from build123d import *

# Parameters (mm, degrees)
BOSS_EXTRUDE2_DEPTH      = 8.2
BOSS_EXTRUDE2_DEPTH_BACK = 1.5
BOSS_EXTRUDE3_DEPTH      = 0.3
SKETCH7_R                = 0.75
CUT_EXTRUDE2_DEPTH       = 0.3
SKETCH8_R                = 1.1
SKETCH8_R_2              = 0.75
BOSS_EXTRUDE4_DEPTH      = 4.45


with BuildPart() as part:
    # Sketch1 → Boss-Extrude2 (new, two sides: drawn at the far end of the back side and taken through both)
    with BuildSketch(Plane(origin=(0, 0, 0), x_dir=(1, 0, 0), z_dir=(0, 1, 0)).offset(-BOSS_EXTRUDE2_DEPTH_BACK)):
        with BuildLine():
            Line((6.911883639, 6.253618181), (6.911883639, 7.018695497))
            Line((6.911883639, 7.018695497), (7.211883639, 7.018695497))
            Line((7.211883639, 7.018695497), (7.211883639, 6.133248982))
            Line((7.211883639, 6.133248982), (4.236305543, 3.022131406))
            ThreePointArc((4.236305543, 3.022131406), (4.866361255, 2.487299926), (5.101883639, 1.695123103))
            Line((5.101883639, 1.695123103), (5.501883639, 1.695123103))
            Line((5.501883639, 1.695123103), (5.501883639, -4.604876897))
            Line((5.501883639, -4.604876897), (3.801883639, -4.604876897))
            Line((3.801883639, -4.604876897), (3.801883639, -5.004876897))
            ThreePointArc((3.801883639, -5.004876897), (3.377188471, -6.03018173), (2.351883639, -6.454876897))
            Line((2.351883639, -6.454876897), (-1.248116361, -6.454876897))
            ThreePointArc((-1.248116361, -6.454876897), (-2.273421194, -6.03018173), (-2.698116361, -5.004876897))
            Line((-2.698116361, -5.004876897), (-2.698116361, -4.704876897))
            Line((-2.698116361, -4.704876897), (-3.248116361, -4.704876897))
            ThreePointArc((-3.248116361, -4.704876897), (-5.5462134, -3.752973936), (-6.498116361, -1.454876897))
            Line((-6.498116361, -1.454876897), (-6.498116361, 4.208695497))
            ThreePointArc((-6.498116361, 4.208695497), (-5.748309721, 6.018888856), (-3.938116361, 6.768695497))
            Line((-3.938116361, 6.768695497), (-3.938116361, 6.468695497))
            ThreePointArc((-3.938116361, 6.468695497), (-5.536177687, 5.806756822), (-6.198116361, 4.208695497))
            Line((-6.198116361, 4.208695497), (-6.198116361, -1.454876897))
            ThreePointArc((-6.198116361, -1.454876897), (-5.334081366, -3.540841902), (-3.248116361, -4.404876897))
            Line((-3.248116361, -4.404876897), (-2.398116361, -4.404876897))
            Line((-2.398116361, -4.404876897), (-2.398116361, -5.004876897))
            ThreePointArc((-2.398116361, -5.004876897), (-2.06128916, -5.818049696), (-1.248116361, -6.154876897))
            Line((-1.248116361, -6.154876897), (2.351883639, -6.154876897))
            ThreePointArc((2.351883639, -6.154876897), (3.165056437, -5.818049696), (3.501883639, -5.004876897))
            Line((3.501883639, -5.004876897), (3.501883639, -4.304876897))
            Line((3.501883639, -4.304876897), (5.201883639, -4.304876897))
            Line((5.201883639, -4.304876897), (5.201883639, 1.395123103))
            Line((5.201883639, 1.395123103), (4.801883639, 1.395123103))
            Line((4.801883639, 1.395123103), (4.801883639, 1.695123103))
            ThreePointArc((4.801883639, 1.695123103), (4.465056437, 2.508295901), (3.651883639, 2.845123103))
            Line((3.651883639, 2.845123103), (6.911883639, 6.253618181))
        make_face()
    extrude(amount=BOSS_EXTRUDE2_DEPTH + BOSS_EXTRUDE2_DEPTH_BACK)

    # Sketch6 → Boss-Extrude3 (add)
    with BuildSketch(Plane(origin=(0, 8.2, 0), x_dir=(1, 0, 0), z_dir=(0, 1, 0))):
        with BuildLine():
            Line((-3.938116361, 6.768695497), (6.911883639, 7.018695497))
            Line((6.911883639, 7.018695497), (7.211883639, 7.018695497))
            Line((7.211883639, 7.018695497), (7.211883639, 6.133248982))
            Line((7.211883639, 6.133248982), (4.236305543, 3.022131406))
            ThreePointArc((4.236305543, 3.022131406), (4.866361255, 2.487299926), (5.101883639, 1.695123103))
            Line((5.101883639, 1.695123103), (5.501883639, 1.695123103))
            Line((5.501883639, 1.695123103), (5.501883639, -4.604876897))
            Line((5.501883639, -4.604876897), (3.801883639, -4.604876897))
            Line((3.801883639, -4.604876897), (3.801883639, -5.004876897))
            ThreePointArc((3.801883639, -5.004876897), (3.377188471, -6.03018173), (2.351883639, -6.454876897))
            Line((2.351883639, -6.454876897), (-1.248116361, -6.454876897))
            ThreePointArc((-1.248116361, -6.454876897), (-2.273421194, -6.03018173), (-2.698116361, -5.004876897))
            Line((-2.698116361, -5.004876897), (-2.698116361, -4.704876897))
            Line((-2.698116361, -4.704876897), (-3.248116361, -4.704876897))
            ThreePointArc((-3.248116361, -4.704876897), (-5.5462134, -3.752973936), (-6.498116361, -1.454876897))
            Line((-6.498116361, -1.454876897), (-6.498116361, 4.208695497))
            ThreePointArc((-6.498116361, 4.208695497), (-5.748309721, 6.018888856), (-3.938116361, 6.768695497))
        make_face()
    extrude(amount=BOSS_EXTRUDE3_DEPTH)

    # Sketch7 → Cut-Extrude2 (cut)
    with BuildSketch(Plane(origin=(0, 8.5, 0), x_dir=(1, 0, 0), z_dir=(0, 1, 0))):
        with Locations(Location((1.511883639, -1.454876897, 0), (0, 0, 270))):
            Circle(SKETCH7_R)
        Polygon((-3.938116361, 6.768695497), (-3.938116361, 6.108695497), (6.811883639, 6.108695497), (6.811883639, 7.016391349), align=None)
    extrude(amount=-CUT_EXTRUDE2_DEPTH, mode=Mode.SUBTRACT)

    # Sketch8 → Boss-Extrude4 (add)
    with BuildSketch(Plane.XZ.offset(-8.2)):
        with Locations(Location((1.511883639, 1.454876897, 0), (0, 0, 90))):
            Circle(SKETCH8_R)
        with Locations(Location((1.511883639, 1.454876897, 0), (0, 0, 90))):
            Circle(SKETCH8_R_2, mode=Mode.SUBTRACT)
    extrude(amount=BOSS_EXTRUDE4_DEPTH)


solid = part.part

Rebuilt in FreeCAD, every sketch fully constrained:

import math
import FreeCAD as App
import Part
import Sketcher

V = App.Vector


def add_polygon(sketch, points):
    """Adds a closed chain of lines whose ends are joined by coincident constraints."""
    first, n = sketch.GeometryCount, len(points)
    for a, b in zip(points, points[1:] + points[:1]):
        sketch.addGeometry(Part.LineSegment(App.Vector(*a, 0), App.Vector(*b, 0)), False)
    for i in range(n):
        sketch.addConstraint(Sketcher.Constraint("Coincident", first + i, 2, first + (i + 1) % n, 1))

doc = App.newDocument("Part")
body = doc.addObject("PartDesign::Body", "Body")

sketch1 = body.newObject("Sketcher::SketchObject", "Sketch")
sketch1.AttachmentSupport = (doc.getObject("XZ_Plane"), [""])
sketch1.MapMode = "FlatFace"
sketch1.addGeometry(Part.LineSegment(V(6.91, -7.02, 0), V(6.91, -6.25, 0)), False)
sketch1.addGeometry(Part.LineSegment(V(6.91, -6.25, 0), V(3.65, -2.85, 0)), False)
sketch1.addGeometry(Part.ArcOfCircle(Part.Circle(V(3.65, -1.7, 0), V(0, 0, 1), 1.15), math.radians(-90), math.radians(0)), False)
sketch1.addGeometry(Part.LineSegment(V(4.8, -1.7, 0), V(4.8, -1.4, 0)), False)
sketch1.addGeometry(Part.LineSegment(V(4.8, -1.4, 0), V(5.2, -1.4, 0)), False)
sketch1.addGeometry(Part.LineSegment(V(5.2, -1.4, 0), V(5.2, 4.3, 0)), False)
sketch1.addGeometry(Part.LineSegment(V(5.2, 4.3, 0), V(3.5, 4.3, 0)), False)
sketch1.addGeometry(Part.LineSegment(V(3.5, 4.3, 0), V(3.5, 5, 0)), False)
sketch1.addGeometry(Part.ArcOfCircle(Part.Circle(V(2.35, 5, 0), V(0, 0, 1), 1.15), math.radians(0), math.radians(90)), False)
sketch1.addGeometry(Part.LineSegment(V(2.35, 6.15, 0), V(-1.25, 6.15, 0)), False)
sketch1.addGeometry(Part.ArcOfCircle(Part.Circle(V(-1.25, 5, 0), V(0, 0, 1), 1.15), math.radians(90), math.radians(180)), False)
sketch1.addGeometry(Part.LineSegment(V(-2.4, 5, 0), V(-2.4, 4.4, 0)), False)
sketch1.addGeometry(Part.LineSegment(V(-2.4, 4.4, 0), V(-3.25, 4.4, 0)), False)
sketch1.addGeometry(Part.ArcOfCircle(Part.Circle(V(-3.25, 1.45, 0), V(0, 0, 1), 2.95), math.radians(90), math.radians(180)), False)
sketch1.addGeometry(Part.LineSegment(V(-6.2, 1.45, 0), V(-6.2, -4.21, 0)), False)
sketch1.addGeometry(Part.ArcOfCircle(Part.Circle(V(-3.94, -4.21, 0), V(0, 0, 1), 2.26), math.radians(180), math.radians(270)), False)
sketch1.addGeometry(Part.LineSegment(V(-3.94, -6.47, 0), V(-3.94, -6.77, 0)), False)
sketch1.addGeometry(Part.ArcOfCircle(Part.Circle(V(-3.94, -4.21, 0), V(0, 0, 1), 2.56), math.radians(-180), math.radians(-90)), False)
sketch1.addGeometry(Part.LineSegment(V(-6.5, -4.21, 0), V(-6.5, 1.45, 0)), False)
sketch1.addGeometry(Part.ArcOfCircle(Part.Circle(V(-3.25, 1.45, 0), V(0, 0, 1), 3.25), math.radians(90), math.radians(180)), False)
sketch1.addGeometry(Part.LineSegment(V(-3.25, 4.7, 0), V(-2.7, 4.7, 0)), False)
sketch1.addGeometry(Part.LineSegment(V(-2.7, 4.7, 0), V(-2.7, 5, 0)), False)
sketch1.addGeometry(Part.ArcOfCircle(Part.Circle(V(-1.25, 5, 0), V(0, 0, 1), 1.45), math.radians(90), math.radians(180)), False)
sketch1.addGeometry(Part.LineSegment(V(-1.25, 6.45, 0), V(2.35, 6.45, 0)), False)
sketch1.addGeometry(Part.ArcOfCircle(Part.Circle(V(2.35, 5, 0), V(0, 0, 1), 1.45), math.radians(0), math.radians(90)), False)
sketch1.addGeometry(Part.LineSegment(V(3.8, 5, 0), V(3.8, 4.6, 0)), False)
sketch1.addGeometry(Part.LineSegment(V(3.8, 4.6, 0), V(5.5, 4.6, 0)), False)
sketch1.addGeometry(Part.LineSegment(V(5.5, 4.6, 0), V(5.5, -1.7, 0)), False)
sketch1.addGeometry(Part.LineSegment(V(5.5, -1.7, 0), V(5.1, -1.7, 0)), False)
sketch1.addGeometry(Part.ArcOfCircle(Part.Circle(V(3.65, -1.7, 0), V(0, 0, 1), 1.45), math.radians(-66), math.radians(0)), False)
sketch1.addGeometry(Part.LineSegment(V(4.24, -3.02, 0), V(7.21, -6.13, 0)), False)
sketch1.addGeometry(Part.LineSegment(V(7.21, -6.13, 0), V(7.21, -7.02, 0)), False)
sketch1.addGeometry(Part.LineSegment(V(7.21, -7.02, 0), V(6.91, -7.02, 0)), False)
sketch1.addConstraint(Sketcher.Constraint("Coincident", 0, 2, 1, 1))
sketch1.addConstraint(Sketcher.Constraint("Coincident", 1, 2, 2, 1))
sketch1.addConstraint(Sketcher.Constraint("Tangent", 2, 2, 3, 1))
sketch1.addConstraint(Sketcher.Constraint("Coincident", 3, 2, 4, 1))
sketch1.addConstraint(Sketcher.Constraint("Coincident", 4, 2, 5, 1))
sketch1.addConstraint(Sketcher.Constraint("Coincident", 5, 2, 6, 1))
sketch1.addConstraint(Sketcher.Constraint("Coincident", 6, 2, 7, 1))
sketch1.addConstraint(Sketcher.Constraint("Tangent", 7, 2, 8, 1))
sketch1.addConstraint(Sketcher.Constraint("Tangent", 8, 2, 9, 1))
sketch1.addConstraint(Sketcher.Constraint("Tangent", 9, 2, 10, 1))
sketch1.addConstraint(Sketcher.Constraint("Tangent", 10, 2, 11, 1))
sketch1.addConstraint(Sketcher.Constraint("Coincident", 11, 2, 12, 1))
sketch1.addConstraint(Sketcher.Constraint("Tangent", 12, 2, 13, 1))
sketch1.addConstraint(Sketcher.Constraint("Tangent", 13, 2, 14, 1))
sketch1.addConstraint(Sketcher.Constraint("Tangent", 14, 2, 15, 1))
sketch1.addConstraint(Sketcher.Constraint("Coincident", 15, 2, 16, 1))
sketch1.addConstraint(Sketcher.Constraint("Coincident", 16, 2, 17, 2))
sketch1.addConstraint(Sketcher.Constraint("Tangent", 17, 1, 18, 1))
sketch1.addConstraint(Sketcher.Constraint("Tangent", 18, 2, 19, 2))
sketch1.addConstraint(Sketcher.Constraint("Tangent", 19, 1, 20, 1))
sketch1.addConstraint(Sketcher.Constraint("Coincident", 20, 2, 21, 1))
sketch1.addConstraint(Sketcher.Constraint("Tangent", 21, 2, 22, 2))
sketch1.addConstraint(Sketcher.Constraint("Tangent", 22, 1, 23, 1))
sketch1.addConstraint(Sketcher.Constraint("Tangent", 23, 2, 24, 2))
sketch1.addConstraint(Sketcher.Constraint("Tangent", 24, 1, 25, 1))
sketch1.addConstraint(Sketcher.Constraint("Coincident", 25, 2, 26, 1))
sketch1.addConstraint(Sketcher.Constraint("Coincident", 26, 2, 27, 1))
sketch1.addConstraint(Sketcher.Constraint("Coincident", 27, 2, 28, 1))
sketch1.addConstraint(Sketcher.Constraint("Coincident", 28, 2, 29, 2))
sketch1.addConstraint(Sketcher.Constraint("Coincident", 29, 1, 30, 1))
sketch1.addConstraint(Sketcher.Constraint("Coincident", 30, 2, 31, 1))
sketch1.addConstraint(Sketcher.Constraint("Coincident", 31, 2, 32, 1))
sketch1.addConstraint(Sketcher.Constraint("Coincident", 32, 2, 0, 1))
sketch1.addConstraint(Sketcher.Constraint("Vertical", 0))
sketch1.addConstraint(Sketcher.Constraint("Vertical", 3))
sketch1.addConstraint(Sketcher.Constraint("Horizontal", 4))
sketch1.addConstraint(Sketcher.Constraint("Vertical", 5))
sketch1.addConstraint(Sketcher.Constraint("Horizontal", 6))
sketch1.addConstraint(Sketcher.Constraint("Vertical", 7))
sketch1.addConstraint(Sketcher.Constraint("Horizontal", 9))
sketch1.addConstraint(Sketcher.Constraint("Vertical", 11))
sketch1.addConstraint(Sketcher.Constraint("Horizontal", 12))
sketch1.addConstraint(Sketcher.Constraint("Vertical", 14))
sketch1.addConstraint(Sketcher.Constraint("Vertical", 16))
sketch1.addConstraint(Sketcher.Constraint("Vertical", 18))
sketch1.addConstraint(Sketcher.Constraint("Horizontal", 20))
sketch1.addConstraint(Sketcher.Constraint("Vertical", 21))
sketch1.addConstraint(Sketcher.Constraint("Horizontal", 23))
sketch1.addConstraint(Sketcher.Constraint("Vertical", 25))
sketch1.addConstraint(Sketcher.Constraint("Horizontal", 26))
sketch1.addConstraint(Sketcher.Constraint("Vertical", 27))
sketch1.addConstraint(Sketcher.Constraint("Horizontal", 28))
sketch1.addConstraint(Sketcher.Constraint("Vertical", 31))
sketch1.addConstraint(Sketcher.Constraint("Horizontal", 32))
sketch1.addConstraint(Sketcher.Constraint("Coincident", 17, 3, 15, 3))
sketch1.addConstraint(Sketcher.Constraint("Coincident", 19, 3, 13, 3))
sketch1.addConstraint(Sketcher.Constraint("Coincident", 22, 3, 10, 3))
sketch1.addConstraint(Sketcher.Constraint("Coincident", 24, 3, 8, 3))
sketch1.addConstraint(Sketcher.Constraint("Coincident", 29, 3, 2, 3))
sketch1.addConstraint(Sketcher.Constraint("Equal", 2, 8))
sketch1.addConstraint(Sketcher.Constraint("Equal", 8, 10))
sketch1.addConstraint(Sketcher.Constraint("Equal", 24, 29))
sketch1.addConstraint(Sketcher.Constraint("Parallel", 1, 30))
sketch1.addConstraint(Sketcher.Constraint("Horizontal", 2, 2, 27, 2))
sketch1.addConstraint(Sketcher.Constraint("Vertical", 29, 3, 1, 2))
sketch1.addConstraint(Sketcher.Constraint("Vertical", 17, 3, 15, 2))
sketch1.addConstraint(Sketcher.Constraint("Equal", 6, 26))
sketch1.addConstraint(Sketcher.Constraint("Equal", 32, 3))
sketch1.addConstraint(Sketcher.Constraint("Equal", 3, 16))
sketch1.addConstraint(Sketcher.Constraint("Equal", 16, 21))
sketch1.addConstraint(Sketcher.Constraint("Equal", 28, 25))
sketch1.addConstraint(Sketcher.Constraint("Radius", 2, 1.15))
sketch1.addConstraint(Sketcher.Constraint("Radius", 13, 2.95))
sketch1.addConstraint(Sketcher.Constraint("Radius", 15, 2.26))
sketch1.addConstraint(Sketcher.Constraint("Radius", 17, 2.56))
sketch1.addConstraint(Sketcher.Constraint("Radius", 22, 1.45))
sketch1.addConstraint(Sketcher.Constraint("DistanceX", 4, 1, 4, 2, 0.4))
sketch1.addConstraint(Sketcher.Constraint("DistanceX", 6, 2, 6, 1, 1.7))
sketch1.addConstraint(Sketcher.Constraint("DistanceX", 9, 2, 9, 1, 3.6))
sketch1.addConstraint(Sketcher.Constraint("DistanceY", 5, 1, 5, 2, 5.7))
sketch1.addConstraint(Sketcher.Constraint("DistanceY", 7, 1, 7, 2, 0.7))
sketch1.addConstraint(Sketcher.Constraint("DistanceX", 13, 3, 10, 3, 2.0))
sketch1.addConstraint(Sketcher.Constraint("DistanceX", 29, 3, 0, 2, 3.26))
sketch1.addConstraint(Sketcher.Constraint("Distance", 30, 4.305011))
sketch1.addConstraint(Sketcher.Constraint("DistanceY", 0, 1, 0, 2, 0.765077))
sketch1.addConstraint(Sketcher.Constraint("DistanceY", 14, 2, 14, 1, 5.663572))
sketch1.addConstraint(Sketcher.Constraint("DistanceY", 31, 2, 31, 1, 0.885447))
sketch1.addConstraint(Sketcher.Constraint("DistanceY", 0, 2, -1, 1, 6.253618))
sketch1.addConstraint(Sketcher.Constraint("DistanceX", -1, 1, 2, 3, 3.651884))
pad1 = body.newObject("PartDesign::Pad", "Pad")
pad1.Profile = sketch1
pad1.Type = "TwoLengths"
pad1.Length = 8.2
pad1.Length2 = 1.5
pad1.Reversed = True

sketch2 = body.newObject("Sketcher::SketchObject", "Sketch001")
sketch2.AttachmentSupport = (doc.getObject("XZ_Plane"), [""])
sketch2.MapMode = "FlatFace"
sketch2.AttachmentOffset = App.Placement(V(0, 0, -8.2), App.Rotation())
sketch2.addGeometry(Part.LineSegment(V(6.91, -7.02, 0), V(-3.94, -6.77, 0)), False)
sketch2.addGeometry(Part.ArcOfCircle(Part.Circle(V(-3.94, -4.21, 0), V(0, 0, 1), 2.56), math.radians(-180), math.radians(-90)), False)
sketch2.addGeometry(Part.LineSegment(V(-6.5, -4.21, 0), V(-6.5, 1.45, 0)), False)
sketch2.addGeometry(Part.ArcOfCircle(Part.Circle(V(-3.25, 1.45, 0), V(0, 0, 1), 3.25), math.radians(90), math.radians(180)), False)
sketch2.addGeometry(Part.LineSegment(V(-3.25, 4.7, 0), V(-2.7, 4.7, 0)), False)
sketch2.addGeometry(Part.LineSegment(V(-2.7, 4.7, 0), V(-2.7, 5, 0)), False)
sketch2.addGeometry(Part.ArcOfCircle(Part.Circle(V(-1.25, 5, 0), V(0, 0, 1), 1.45), math.radians(90), math.radians(180)), False)
sketch2.addGeometry(Part.LineSegment(V(-1.25, 6.45, 0), V(2.35, 6.45, 0)), False)
sketch2.addGeometry(Part.ArcOfCircle(Part.Circle(V(2.35, 5, 0), V(0, 0, 1), 1.45), math.radians(0), math.radians(90)), False)
sketch2.addGeometry(Part.LineSegment(V(3.8, 5, 0), V(3.8, 4.6, 0)), False)
sketch2.addGeometry(Part.LineSegment(V(3.8, 4.6, 0), V(5.5, 4.6, 0)), False)
sketch2.addGeometry(Part.LineSegment(V(5.5, 4.6, 0), V(5.5, -1.7, 0)), False)
sketch2.addGeometry(Part.LineSegment(V(5.5, -1.7, 0), V(5.1, -1.7, 0)), False)
sketch2.addGeometry(Part.ArcOfCircle(Part.Circle(V(3.65, -1.7, 0), V(0, 0, 1), 1.45), math.radians(-66), math.radians(0)), False)
sketch2.addGeometry(Part.LineSegment(V(4.24, -3.02, 0), V(7.21, -6.13, 0)), False)
sketch2.addGeometry(Part.LineSegment(V(7.21, -6.13, 0), V(7.21, -7.02, 0)), False)
sketch2.addGeometry(Part.LineSegment(V(7.21, -7.02, 0), V(6.91, -7.02, 0)), False)
sketch2.addConstraint(Sketcher.Constraint("Coincident", 0, 2, 1, 2))
sketch2.addConstraint(Sketcher.Constraint("Tangent", 1, 1, 2, 1))
sketch2.addConstraint(Sketcher.Constraint("Tangent", 2, 2, 3, 2))
sketch2.addConstraint(Sketcher.Constraint("Tangent", 3, 1, 4, 1))
sketch2.addConstraint(Sketcher.Constraint("Coincident", 4, 2, 5, 1))
sketch2.addConstraint(Sketcher.Constraint("Tangent", 5, 2, 6, 2))
sketch2.addConstraint(Sketcher.Constraint("Tangent", 6, 1, 7, 1))
sketch2.addConstraint(Sketcher.Constraint("Tangent", 7, 2, 8, 2))
sketch2.addConstraint(Sketcher.Constraint("Tangent", 8, 1, 9, 1))
sketch2.addConstraint(Sketcher.Constraint("Coincident", 9, 2, 10, 1))
sketch2.addConstraint(Sketcher.Constraint("Coincident", 10, 2, 11, 1))
sketch2.addConstraint(Sketcher.Constraint("Coincident", 11, 2, 12, 1))
sketch2.addConstraint(Sketcher.Constraint("Coincident", 12, 2, 13, 2))
sketch2.addConstraint(Sketcher.Constraint("Coincident", 13, 1, 14, 1))
sketch2.addConstraint(Sketcher.Constraint("Coincident", 14, 2, 15, 1))
sketch2.addConstraint(Sketcher.Constraint("Coincident", 15, 2, 16, 1))
sketch2.addConstraint(Sketcher.Constraint("Coincident", 16, 2, 0, 1))
sketch2.addConstraint(Sketcher.Constraint("Vertical", 2))
sketch2.addConstraint(Sketcher.Constraint("Horizontal", 4))
sketch2.addConstraint(Sketcher.Constraint("Vertical", 5))
sketch2.addConstraint(Sketcher.Constraint("Horizontal", 7))
sketch2.addConstraint(Sketcher.Constraint("Vertical", 9))
sketch2.addConstraint(Sketcher.Constraint("Horizontal", 10))
sketch2.addConstraint(Sketcher.Constraint("Vertical", 11))
sketch2.addConstraint(Sketcher.Constraint("Horizontal", 12))
sketch2.addConstraint(Sketcher.Constraint("Vertical", 15))
sketch2.addConstraint(Sketcher.Constraint("Horizontal", 16))
sketch2.addConstraint(Sketcher.Constraint("Equal", 6, 8))
sketch2.addConstraint(Sketcher.Constraint("Equal", 8, 13))
sketch2.addConstraint(Sketcher.Constraint("Horizontal", 13, 3, 11, 2))
sketch2.addConstraint(Sketcher.Constraint("Vertical", 1, 3, 0, 2))
sketch2.addConstraint(Sketcher.Constraint("Equal", 16, 5))
sketch2.addConstraint(Sketcher.Constraint("Equal", 12, 9))
sketch2.addConstraint(Sketcher.Constraint("Radius", 1, 2.56))
sketch2.addConstraint(Sketcher.Constraint("Radius", 3, 3.25))
sketch2.addConstraint(Sketcher.Constraint("Radius", 6, 1.45))
sketch2.addConstraint(Sketcher.Constraint("DistanceX", 7, 1, 7, 2, 3.6))
sketch2.addConstraint(Sketcher.Constraint("DistanceX", 10, 1, 10, 2, 1.7))
sketch2.addConstraint(Sketcher.Constraint("DistanceX", 12, 2, 12, 1, 0.4))
sketch2.addConstraint(Sketcher.Constraint("DistanceX", 16, 2, 16, 1, 0.3))
sketch2.addConstraint(Sketcher.Constraint("DistanceY", 11, 2, 11, 1, 6.3))
sketch2.addConstraint(Sketcher.Constraint("DistanceX", 3, 3, 6, 3, 2.0))
sketch2.addConstraint(Sketcher.Constraint("DistanceX", 11, 2, 14, 2, 1.71))
sketch2.addConstraint(Sketcher.Constraint("Distance", 0, 10.85288))
sketch2.addConstraint(Sketcher.Constraint("Distance", 14, 4.305011))
sketch2.addConstraint(Sketcher.Constraint("DistanceY", 2, 1, 2, 2, 5.663572))
sketch2.addConstraint(Sketcher.Constraint("DistanceY", 15, 2, 15, 1, 0.885447))
sketch2.addConstraint(Sketcher.Constraint("DistanceY", 13, 1, -1, 1, 3.022131))
sketch2.addConstraint(Sketcher.Constraint("DistanceX", 1, 3, -1, 1, 3.938116))
pad2 = body.newObject("PartDesign::Pad", "Pad001")
pad2.Profile = sketch2
pad2.Length = 0.3
pad2.Reversed = True

sketch3 = body.newObject("Sketcher::SketchObject", "Sketch002")
sketch3.AttachmentSupport = (doc.getObject("XZ_Plane"), [""])
sketch3.MapMode = "FlatFace"
sketch3.AttachmentOffset = App.Placement(V(0, 0, -8.5), App.Rotation())
sketch3.addGeometry(Part.Circle(V(1.5, 1.5, 0), V(0, 0, 1), 0.8), False)
add_polygon(sketch3, [(-3.9, -6.8), (-3.9, -6.1), (6.8, -6.1), (6.8, -7)])
sketch3.addConstraint(Sketcher.Constraint("Vertical", 1))
sketch3.addConstraint(Sketcher.Constraint("Horizontal", 2))
sketch3.addConstraint(Sketcher.Constraint("Vertical", 3))
sketch3.addConstraint(Sketcher.Constraint("Diameter", 0, 1.5))
sketch3.addConstraint(Sketcher.Constraint("DistanceX", 2, 1, 2, 2, 10.75))
sketch3.addConstraint(Sketcher.Constraint("DistanceY", 1, 1, 1, 2, 0.66))
sketch3.addConstraint(Sketcher.Constraint("DistanceX", 0, 3, 2, 2, 5.3))
sketch3.addConstraint(Sketcher.Constraint("DistanceY", 3, 2, 3, 1, 0.907696))
sketch3.addConstraint(Sketcher.Constraint("DistanceY", 3, 2, -1, 1, 7.016391))
sketch3.addConstraint(Sketcher.Constraint("DistanceY", 3, 2, 0, 3, 8.471268))
sketch3.addConstraint(Sketcher.Constraint("DistanceX", -1, 1, 0, 3, 1.511884))
pocket1 = body.newObject("PartDesign::Pocket", "Pocket")
pocket1.Profile = sketch3
pocket1.Length = 0.3
pocket1.Reversed = True

sketch4 = body.newObject("Sketcher::SketchObject", "Sketch003")
sketch4.AttachmentSupport = (doc.getObject("XZ_Plane"), [""])
sketch4.MapMode = "FlatFace"
sketch4.AttachmentOffset = App.Placement(V(0, 0, -8.2), App.Rotation())
sketch4.addGeometry(Part.Circle(V(1.5, 1.5, 0), V(0, 0, 1), 1.1), False)
sketch4.addGeometry(Part.Circle(V(1.5, 1.5, 0), V(0, 0, 1), 0.8), False)
sketch4.addConstraint(Sketcher.Constraint("Coincident", 1, 3, 0, 3))
sketch4.addConstraint(Sketcher.Constraint("Diameter", 0, 2.2))
sketch4.addConstraint(Sketcher.Constraint("Diameter", 1, 1.5))
sketch4.addConstraint(Sketcher.Constraint("DistanceX", -1, 1, 0, 3, 1.511884))
sketch4.addConstraint(Sketcher.Constraint("DistanceY", -1, 1, 0, 3, 1.454877))
pad3 = body.newObject("PartDesign::Pad", "Pad002")
pad3.Profile = sketch4
pad3.Length = 4.45

doc.recompute()
